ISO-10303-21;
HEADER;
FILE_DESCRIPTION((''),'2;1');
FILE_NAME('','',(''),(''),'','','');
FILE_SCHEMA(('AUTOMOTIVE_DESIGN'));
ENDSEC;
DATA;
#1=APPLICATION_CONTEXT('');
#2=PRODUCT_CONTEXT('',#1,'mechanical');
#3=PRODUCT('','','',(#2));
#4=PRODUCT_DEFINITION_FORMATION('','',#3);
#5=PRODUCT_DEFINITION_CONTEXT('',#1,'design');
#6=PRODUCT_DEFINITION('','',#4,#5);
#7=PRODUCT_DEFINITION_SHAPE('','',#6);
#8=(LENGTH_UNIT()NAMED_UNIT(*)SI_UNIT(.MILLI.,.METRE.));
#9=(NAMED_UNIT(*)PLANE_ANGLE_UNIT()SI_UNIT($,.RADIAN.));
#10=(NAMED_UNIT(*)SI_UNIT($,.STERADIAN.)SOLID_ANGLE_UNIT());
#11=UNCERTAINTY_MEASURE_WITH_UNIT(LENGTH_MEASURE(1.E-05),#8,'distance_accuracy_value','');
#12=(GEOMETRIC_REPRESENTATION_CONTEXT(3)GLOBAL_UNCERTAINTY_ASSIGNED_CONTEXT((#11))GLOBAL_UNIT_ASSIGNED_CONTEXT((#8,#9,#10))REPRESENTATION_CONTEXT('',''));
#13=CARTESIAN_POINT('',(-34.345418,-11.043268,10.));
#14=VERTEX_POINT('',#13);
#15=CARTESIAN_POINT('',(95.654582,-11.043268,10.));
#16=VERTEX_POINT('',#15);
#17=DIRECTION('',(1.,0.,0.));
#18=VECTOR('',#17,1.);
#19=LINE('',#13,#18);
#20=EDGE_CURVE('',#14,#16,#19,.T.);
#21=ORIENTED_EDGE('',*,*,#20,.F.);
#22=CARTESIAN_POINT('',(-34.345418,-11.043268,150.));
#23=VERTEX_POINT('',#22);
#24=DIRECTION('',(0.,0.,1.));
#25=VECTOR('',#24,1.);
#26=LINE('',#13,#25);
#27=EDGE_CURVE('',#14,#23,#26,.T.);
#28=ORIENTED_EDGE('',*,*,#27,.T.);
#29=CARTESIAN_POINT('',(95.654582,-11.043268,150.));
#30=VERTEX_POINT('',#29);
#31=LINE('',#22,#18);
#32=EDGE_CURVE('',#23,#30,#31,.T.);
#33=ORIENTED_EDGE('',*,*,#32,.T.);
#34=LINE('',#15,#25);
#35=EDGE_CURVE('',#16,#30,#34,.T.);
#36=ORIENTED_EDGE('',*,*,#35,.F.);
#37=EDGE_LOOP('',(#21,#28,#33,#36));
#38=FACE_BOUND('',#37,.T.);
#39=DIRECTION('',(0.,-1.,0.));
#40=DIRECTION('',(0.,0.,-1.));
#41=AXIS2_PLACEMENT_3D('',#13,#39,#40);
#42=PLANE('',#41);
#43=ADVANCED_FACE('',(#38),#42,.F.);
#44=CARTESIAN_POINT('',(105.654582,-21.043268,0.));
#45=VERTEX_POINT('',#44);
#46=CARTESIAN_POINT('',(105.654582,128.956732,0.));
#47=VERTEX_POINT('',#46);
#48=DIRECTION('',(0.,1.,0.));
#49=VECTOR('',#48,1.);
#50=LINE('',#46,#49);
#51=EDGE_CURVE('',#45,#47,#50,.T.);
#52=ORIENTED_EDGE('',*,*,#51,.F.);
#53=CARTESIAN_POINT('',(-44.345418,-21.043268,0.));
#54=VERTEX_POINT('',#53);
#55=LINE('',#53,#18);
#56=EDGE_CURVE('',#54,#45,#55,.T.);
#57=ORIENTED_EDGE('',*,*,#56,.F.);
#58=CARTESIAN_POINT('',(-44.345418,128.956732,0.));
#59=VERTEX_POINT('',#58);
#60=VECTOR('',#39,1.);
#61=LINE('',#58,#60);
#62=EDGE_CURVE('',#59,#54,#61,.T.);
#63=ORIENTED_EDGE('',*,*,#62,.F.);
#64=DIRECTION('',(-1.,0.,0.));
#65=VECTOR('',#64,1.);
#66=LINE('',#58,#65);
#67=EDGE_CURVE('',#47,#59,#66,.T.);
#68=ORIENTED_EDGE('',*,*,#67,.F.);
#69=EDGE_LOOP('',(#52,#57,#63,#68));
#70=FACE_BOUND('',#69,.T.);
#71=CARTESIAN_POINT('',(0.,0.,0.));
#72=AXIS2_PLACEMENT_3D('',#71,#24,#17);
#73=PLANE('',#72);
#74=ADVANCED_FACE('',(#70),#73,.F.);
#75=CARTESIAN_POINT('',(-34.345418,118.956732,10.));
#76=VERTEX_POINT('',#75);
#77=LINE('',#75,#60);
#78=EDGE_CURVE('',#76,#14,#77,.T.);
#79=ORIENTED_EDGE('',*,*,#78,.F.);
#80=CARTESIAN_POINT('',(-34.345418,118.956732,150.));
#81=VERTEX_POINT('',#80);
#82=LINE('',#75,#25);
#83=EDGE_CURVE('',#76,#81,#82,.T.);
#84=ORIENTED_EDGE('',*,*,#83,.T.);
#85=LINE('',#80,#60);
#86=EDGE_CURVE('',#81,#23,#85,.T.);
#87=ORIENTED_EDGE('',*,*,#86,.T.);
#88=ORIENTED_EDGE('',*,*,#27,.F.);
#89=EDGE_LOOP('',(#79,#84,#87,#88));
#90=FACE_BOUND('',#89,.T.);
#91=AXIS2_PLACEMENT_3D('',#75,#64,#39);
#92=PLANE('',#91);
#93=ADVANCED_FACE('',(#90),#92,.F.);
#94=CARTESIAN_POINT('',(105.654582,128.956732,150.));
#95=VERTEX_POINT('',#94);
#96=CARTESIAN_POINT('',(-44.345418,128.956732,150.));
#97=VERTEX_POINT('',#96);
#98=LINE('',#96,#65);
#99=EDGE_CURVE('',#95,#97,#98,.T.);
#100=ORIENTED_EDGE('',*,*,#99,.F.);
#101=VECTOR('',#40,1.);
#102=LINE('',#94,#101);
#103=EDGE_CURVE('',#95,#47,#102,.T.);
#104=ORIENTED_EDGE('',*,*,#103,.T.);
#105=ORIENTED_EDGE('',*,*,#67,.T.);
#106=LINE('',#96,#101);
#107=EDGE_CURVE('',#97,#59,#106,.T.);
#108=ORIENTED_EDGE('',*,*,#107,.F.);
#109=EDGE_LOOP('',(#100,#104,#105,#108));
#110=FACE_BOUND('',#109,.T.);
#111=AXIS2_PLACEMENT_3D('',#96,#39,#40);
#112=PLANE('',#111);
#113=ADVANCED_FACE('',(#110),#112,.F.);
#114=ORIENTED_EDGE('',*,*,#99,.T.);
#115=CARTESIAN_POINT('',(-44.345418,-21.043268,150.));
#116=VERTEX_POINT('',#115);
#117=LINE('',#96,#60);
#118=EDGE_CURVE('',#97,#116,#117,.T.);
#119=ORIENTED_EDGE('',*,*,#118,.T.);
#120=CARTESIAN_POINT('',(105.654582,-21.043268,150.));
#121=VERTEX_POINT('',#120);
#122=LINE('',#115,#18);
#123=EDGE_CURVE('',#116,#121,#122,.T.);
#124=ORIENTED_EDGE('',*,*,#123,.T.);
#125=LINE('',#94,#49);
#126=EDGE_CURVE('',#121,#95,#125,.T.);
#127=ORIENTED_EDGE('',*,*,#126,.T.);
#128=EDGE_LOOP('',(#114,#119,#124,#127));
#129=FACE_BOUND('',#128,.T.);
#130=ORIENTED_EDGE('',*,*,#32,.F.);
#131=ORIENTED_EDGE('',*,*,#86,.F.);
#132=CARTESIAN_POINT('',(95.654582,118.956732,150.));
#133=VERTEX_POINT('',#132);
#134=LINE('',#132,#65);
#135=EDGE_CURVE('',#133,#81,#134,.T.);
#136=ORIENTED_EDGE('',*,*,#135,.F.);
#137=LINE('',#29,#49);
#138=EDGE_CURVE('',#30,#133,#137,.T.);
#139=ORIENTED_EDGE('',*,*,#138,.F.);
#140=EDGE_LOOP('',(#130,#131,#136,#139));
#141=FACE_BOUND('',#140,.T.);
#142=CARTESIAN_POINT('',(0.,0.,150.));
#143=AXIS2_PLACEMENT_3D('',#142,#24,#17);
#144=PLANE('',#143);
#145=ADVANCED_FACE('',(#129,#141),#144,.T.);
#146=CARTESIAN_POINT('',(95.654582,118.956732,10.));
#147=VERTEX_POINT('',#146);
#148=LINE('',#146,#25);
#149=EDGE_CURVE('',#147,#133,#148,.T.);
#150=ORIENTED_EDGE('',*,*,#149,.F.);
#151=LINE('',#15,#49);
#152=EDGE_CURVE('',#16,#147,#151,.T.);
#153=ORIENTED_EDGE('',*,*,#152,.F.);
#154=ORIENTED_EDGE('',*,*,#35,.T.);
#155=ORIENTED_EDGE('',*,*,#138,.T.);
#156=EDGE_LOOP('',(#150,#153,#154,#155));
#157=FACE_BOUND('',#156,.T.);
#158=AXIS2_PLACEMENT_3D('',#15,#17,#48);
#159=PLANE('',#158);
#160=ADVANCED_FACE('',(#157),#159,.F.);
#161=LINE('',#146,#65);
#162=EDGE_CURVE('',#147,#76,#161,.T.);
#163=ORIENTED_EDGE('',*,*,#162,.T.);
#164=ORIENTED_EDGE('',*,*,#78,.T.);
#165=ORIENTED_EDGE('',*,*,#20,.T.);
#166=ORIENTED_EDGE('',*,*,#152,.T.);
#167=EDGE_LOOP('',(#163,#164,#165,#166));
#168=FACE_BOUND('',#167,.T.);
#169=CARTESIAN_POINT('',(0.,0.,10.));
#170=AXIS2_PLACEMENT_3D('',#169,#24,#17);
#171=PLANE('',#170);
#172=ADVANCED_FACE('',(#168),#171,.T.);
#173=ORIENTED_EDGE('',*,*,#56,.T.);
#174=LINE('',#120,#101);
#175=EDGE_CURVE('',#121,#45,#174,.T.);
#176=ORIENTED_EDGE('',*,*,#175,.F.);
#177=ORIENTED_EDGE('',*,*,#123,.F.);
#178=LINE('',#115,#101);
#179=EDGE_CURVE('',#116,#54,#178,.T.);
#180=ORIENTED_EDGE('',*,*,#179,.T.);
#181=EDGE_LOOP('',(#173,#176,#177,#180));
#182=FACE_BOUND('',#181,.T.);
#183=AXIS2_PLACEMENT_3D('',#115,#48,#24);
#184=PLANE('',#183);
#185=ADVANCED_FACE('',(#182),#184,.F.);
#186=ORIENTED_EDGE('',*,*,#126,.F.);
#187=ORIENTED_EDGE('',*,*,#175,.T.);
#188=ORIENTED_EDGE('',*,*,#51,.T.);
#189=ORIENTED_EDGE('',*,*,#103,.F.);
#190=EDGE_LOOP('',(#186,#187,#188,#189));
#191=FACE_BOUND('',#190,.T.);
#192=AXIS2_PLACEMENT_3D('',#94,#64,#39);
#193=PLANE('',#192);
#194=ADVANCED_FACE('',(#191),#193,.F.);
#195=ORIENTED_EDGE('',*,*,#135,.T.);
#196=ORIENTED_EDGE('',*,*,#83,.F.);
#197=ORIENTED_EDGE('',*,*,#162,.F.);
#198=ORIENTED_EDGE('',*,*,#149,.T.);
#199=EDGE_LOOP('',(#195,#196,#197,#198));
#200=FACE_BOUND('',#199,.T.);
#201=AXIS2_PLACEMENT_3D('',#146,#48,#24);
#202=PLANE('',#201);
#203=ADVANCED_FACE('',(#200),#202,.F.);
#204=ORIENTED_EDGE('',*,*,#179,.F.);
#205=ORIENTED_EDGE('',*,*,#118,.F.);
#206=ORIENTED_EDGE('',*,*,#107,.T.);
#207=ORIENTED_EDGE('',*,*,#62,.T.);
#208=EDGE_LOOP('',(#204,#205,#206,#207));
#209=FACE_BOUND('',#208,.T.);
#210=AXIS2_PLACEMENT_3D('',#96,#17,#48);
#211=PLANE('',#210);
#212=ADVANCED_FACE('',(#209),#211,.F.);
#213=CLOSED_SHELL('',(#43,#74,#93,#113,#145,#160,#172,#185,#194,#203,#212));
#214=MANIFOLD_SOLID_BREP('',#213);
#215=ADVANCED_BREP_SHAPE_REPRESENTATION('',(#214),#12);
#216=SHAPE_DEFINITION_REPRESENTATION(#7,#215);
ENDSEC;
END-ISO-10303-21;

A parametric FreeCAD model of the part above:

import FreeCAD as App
import Part
import Sketcher
Q = App.Units.Quantity

doc = App.newDocument("Part")
params = doc.addObject("Spreadsheet::Sheet", "Params")
for row, (alias, value) in enumerate([
    ("sketch1_width", "150 mm"),
    ("pad1_length", "150 mm"),
    ("sketch2_width", "130 mm"),
    ("pocket1_length", "140 mm"),
], start=1):
    params.set(f"A{row}", alias)
    params.set(f"B{row}", "=" + value)
    params.setAlias(f"B{row}", alias)

body = doc.addObject("PartDesign::Body", "Body")

sketch1 = body.newObject("Sketcher::SketchObject", "Sketch")
sketch1.AttachmentSupport = (doc.getObject("XY_Plane"), [""])
sketch1.MapMode = "FlatFace"
sketch1.addGeometry([
    Part.LineSegment(App.Vector(-44.345418, 128.956732, 0), App.Vector(-44.345418, -21.043268, 0)),
    Part.LineSegment(App.Vector(-44.345418, -21.043268, 0), App.Vector(105.654582, -21.043268, 0)),
    Part.LineSegment(App.Vector(105.654582, -21.043268, 0), App.Vector(105.654582, 128.956732, 0)),
    Part.LineSegment(App.Vector(105.654582, 128.956732, 0), App.Vector(-44.345418, 128.956732, 0)),
], False)
sketch1.addConstraint([
    Sketcher.Constraint("Coincident", 0, 2, 1, 1),
    Sketcher.Constraint("Coincident", 1, 2, 2, 1),
    Sketcher.Constraint("Coincident", 2, 2, 3, 1),
    Sketcher.Constraint("Coincident", 3, 2, 0, 1),
    Sketcher.Constraint("Vertical", 0),
    Sketcher.Constraint("Horizontal", 1),
    Sketcher.Constraint("Vertical", 2),
    Sketcher.Constraint("Horizontal", 3),
    Sketcher.Constraint("Equal", 3, 0),
    Sketcher.Constraint("DistanceX", 1, 1, 1, 2, Q("150 mm")),
    Sketcher.Constraint("DistanceX", 0, 2, -1, 1, Q("44.345418 mm")),
    Sketcher.Constraint("DistanceY", 0, 2, -1, 1, Q("21.043268 mm")),
])
sketch1.setExpression("Constraints[9]", "Params.sketch1_width")
pad1 = body.newObject("PartDesign::Pad", "Pad")
pad1.Profile = sketch1
pad1.setExpression("Length", "Params.pad1_length")

sketch2 = body.newObject("Sketcher::SketchObject", "Sketch001")
sketch2.AttachmentSupport = (doc.getObject("XY_Plane"), [""])
sketch2.MapMode = "FlatFace"
sketch2.AttachmentOffset = App.Placement(App.Vector(0, 0, 150), App.Rotation())
sketch2.addGeometry([
    Part.LineSegment(App.Vector(-34.345418, 118.956732, 0), App.Vector(-34.345418, -11.043268, 0)),
    Part.LineSegment(App.Vector(-34.345418, -11.043268, 0), App.Vector(95.654582, -11.043268, 0)),
    Part.LineSegment(App.Vector(95.654582, -11.043268, 0), App.Vector(95.654582, 118.956732, 0)),
    Part.LineSegment(App.Vector(95.654582, 118.956732, 0), App.Vector(-34.345418, 118.956732, 0)),
], False)
sketch2.addConstraint([
    Sketcher.Constraint("Coincident", 0, 2, 1, 1),
    Sketcher.Constraint("Coincident", 1, 2, 2, 1),
    Sketcher.Constraint("Coincident", 2, 2, 3, 1),
    Sketcher.Constraint("Coincident", 3, 2, 0, 1),
    Sketcher.Constraint("Vertical", 0),
    Sketcher.Constraint("Horizontal", 1),
    Sketcher.Constraint("Vertical", 2),
    Sketcher.Constraint("Horizontal", 3),
    Sketcher.Constraint("Equal", 3, 0),
    Sketcher.Constraint("DistanceX", 1, 1, 1, 2, Q("130 mm")),
    Sketcher.Constraint("DistanceX", 0, 2, -1, 1, Q("34.345418 mm")),
    Sketcher.Constraint("DistanceY", 0, 2, -1, 1, Q("11.043268 mm")),
])
sketch2.setExpression("Constraints[9]", "Params.sketch2_width")
pocket1 = body.newObject("PartDesign::Pocket", "Pocket")
pocket1.Profile = sketch2
pocket1.setExpression("Length", "Params.pocket1_length")

doc.recompute()
